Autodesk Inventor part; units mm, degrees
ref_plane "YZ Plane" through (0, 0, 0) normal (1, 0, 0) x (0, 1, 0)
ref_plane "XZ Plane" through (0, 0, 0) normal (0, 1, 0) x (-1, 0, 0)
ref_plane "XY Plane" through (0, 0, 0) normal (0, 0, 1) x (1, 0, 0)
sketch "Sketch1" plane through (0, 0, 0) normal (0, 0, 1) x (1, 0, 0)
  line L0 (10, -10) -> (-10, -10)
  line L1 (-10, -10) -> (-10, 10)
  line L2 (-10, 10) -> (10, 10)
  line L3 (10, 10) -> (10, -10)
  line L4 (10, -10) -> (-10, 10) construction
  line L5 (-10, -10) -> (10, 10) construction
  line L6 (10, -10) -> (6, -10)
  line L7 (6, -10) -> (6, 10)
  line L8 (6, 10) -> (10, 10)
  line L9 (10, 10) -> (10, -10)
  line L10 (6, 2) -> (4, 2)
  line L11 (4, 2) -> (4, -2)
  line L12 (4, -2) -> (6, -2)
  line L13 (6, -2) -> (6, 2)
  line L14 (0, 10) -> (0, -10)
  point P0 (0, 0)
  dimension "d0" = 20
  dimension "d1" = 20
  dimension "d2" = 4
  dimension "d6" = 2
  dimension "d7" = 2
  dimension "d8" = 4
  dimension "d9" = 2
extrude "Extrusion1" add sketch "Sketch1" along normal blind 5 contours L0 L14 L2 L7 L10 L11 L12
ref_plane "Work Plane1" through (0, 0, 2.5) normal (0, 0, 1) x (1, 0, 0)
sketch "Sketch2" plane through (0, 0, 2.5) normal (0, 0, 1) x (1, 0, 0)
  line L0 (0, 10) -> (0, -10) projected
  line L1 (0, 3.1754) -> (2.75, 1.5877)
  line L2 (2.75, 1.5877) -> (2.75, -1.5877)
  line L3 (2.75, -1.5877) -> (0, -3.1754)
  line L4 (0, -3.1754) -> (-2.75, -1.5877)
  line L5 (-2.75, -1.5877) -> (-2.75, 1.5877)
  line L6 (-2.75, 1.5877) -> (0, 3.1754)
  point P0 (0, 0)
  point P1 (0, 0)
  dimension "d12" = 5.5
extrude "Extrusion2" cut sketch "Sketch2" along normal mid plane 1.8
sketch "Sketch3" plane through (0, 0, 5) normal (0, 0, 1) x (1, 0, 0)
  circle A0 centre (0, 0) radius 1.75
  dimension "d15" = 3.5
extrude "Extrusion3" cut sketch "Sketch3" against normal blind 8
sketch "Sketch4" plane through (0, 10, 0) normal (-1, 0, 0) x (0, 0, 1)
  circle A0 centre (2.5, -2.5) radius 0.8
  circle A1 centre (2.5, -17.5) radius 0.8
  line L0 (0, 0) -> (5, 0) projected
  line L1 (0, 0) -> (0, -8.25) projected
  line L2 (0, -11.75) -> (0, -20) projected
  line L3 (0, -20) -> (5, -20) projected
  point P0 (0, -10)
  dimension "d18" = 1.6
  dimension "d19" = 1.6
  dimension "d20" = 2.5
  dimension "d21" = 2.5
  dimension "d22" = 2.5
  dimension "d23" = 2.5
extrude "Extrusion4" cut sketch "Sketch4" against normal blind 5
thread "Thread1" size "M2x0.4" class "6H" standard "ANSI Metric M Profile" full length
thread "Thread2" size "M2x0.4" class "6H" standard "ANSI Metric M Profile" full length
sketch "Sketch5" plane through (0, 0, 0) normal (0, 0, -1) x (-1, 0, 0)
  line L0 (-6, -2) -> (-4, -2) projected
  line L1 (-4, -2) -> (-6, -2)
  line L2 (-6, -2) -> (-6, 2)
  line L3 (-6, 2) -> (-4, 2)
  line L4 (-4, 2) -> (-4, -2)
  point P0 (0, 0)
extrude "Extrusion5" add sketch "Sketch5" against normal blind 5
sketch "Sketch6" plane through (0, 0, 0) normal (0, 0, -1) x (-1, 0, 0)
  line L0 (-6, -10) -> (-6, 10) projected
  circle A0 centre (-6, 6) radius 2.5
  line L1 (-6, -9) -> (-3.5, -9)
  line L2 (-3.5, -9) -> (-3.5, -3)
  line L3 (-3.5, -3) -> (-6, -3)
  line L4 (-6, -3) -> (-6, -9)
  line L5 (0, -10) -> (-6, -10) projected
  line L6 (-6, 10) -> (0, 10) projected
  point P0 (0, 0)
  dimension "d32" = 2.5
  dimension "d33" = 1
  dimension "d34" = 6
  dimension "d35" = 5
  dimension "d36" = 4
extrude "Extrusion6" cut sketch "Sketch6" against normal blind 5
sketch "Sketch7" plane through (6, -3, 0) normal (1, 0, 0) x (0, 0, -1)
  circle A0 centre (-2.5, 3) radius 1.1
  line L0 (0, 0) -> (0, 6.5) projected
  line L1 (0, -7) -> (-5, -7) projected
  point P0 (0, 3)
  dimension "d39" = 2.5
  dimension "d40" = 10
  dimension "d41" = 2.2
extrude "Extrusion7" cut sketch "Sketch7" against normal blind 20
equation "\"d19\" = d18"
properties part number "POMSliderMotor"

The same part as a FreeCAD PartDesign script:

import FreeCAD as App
import Part
import Sketcher
from FreeCAD import Vector
Q = App.Units.Quantity

doc = App.newDocument("Part")
body = doc.addObject("PartDesign::Body", "Body")

# Sketch on XY plane
sketch1 = body.newObject("Sketcher::SketchObject", "Sketch")
sketch1.AttachmentSupport = (doc.getObject("XY_Plane"), [""])
sketch1.MapMode = "FlatFace"
sketch1.addGeometry(Part.LineSegment(Vector(0, -10, 0), Vector(6, -10, 0)), False)
sketch1.addGeometry(Part.LineSegment(Vector(6, -10, 0), Vector(6, -2, 0)), False)
sketch1.addGeometry(Part.LineSegment(Vector(6, -2, 0), Vector(4, -2, 0)), False)
sketch1.addGeometry(Part.LineSegment(Vector(4, -2, 0), Vector(4, 2, 0)), False)
sketch1.addGeometry(Part.LineSegment(Vector(4, 2, 0), Vector(6, 2, 0)), False)
sketch1.addGeometry(Part.LineSegment(Vector(6, 2, 0), Vector(6, 10, 0)), False)
sketch1.addGeometry(Part.LineSegment(Vector(6, 10, 0), Vector(0, 10, 0)), False)
sketch1.addGeometry(Part.LineSegment(Vector(0, 10, 0), Vector(0, -10, 0)), False)
sketch1.addConstraint(Sketcher.Constraint("Coincident", 0, 2, 1, 1))
sketch1.addConstraint(Sketcher.Constraint("Coincident", 1, 2, 2, 1))
sketch1.addConstraint(Sketcher.Constraint("Coincident", 2, 2, 3, 1))
sketch1.addConstraint(Sketcher.Constraint("Coincident", 3, 2, 4, 1))
sketch1.addConstraint(Sketcher.Constraint("Coincident", 4, 2, 5, 1))
sketch1.addConstraint(Sketcher.Constraint("Coincident", 5, 2, 6, 1))
sketch1.addConstraint(Sketcher.Constraint("Coincident", 6, 2, 7, 1))
sketch1.addConstraint(Sketcher.Constraint("Coincident", 7, 2, 0, 1))
sketch1.addConstraint(Sketcher.Constraint("Horizontal", 0))
sketch1.addConstraint(Sketcher.Constraint("Vertical", 1))
sketch1.addConstraint(Sketcher.Constraint("Horizontal", 2))
sketch1.addConstraint(Sketcher.Constraint("Vertical", 3))
sketch1.addConstraint(Sketcher.Constraint("Horizontal", 4))
sketch1.addConstraint(Sketcher.Constraint("Vertical", 5))
sketch1.addConstraint(Sketcher.Constraint("Horizontal", 6))
sketch1.addConstraint(Sketcher.Constraint("Vertical", 7))
sketch1.addConstraint(Sketcher.Constraint("Symmetric", 6, 2, 7, 2, -1, 1))
sketch1.addConstraint(Sketcher.Constraint("Symmetric", 1, 2, 4, 2, -1))
sketch1.addConstraint(Sketcher.Constraint("DistanceX", 2, 2, 2, 1, Q("2 mm")))
sketch1.addConstraint(Sketcher.Constraint("DistanceY", 3, 1, 3, 2, Q("4 mm")))
sketch1.addConstraint(Sketcher.Constraint("DistanceY", 7, 2, 7, 1, Q("20 mm")))
sketch1.addConstraint(Sketcher.Constraint("DistanceX", -1, 1, 2, 2, Q("4 mm")))
pad1 = body.newObject("PartDesign::Pad", "Pad")
pad1.Profile = sketch1
pad1.Length = 5

# Sketch on XY plane
sketch2 = body.newObject("Sketcher::SketchObject", "Sketch001")
sketch2.AttachmentSupport = (doc.getObject("XY_Plane"), [""])
sketch2.MapMode = "FlatFace"
sketch2.AttachmentOffset = App.Placement(Vector(0, 0, 2.5), App.Rotation())
sketch2.addGeometry(Part.LineSegment(Vector(2.8, 1.6, 0), Vector(0, 3.2, 0)), False)
sketch2.addGeometry(Part.LineSegment(Vector(0, 3.2, 0), Vector(-2.8, 1.6, 0)), False)
sketch2.addGeometry(Part.LineSegment(Vector(-2.8, 1.6, 0), Vector(-2.8, -1.6, 0)), False)
sketch2.addGeometry(Part.LineSegment(Vector(-2.8, -1.6, 0), Vector(0, -3.2, 0)), False)
sketch2.addGeometry(Part.LineSegment(Vector(0, -3.2, 0), Vector(2.8, -1.6, 0)), False)
sketch2.addGeometry(Part.LineSegment(Vector(2.8, -1.6, 0), Vector(2.8, 1.6, 0)), False)
sketch2.addConstraint(Sketcher.Constraint("Coincident", 0, 2, 1, 1))
sketch2.addConstraint(Sketcher.Constraint("Coincident", 1, 2, 2, 1))
sketch2.addConstraint(Sketcher.Constraint("Coincident", 2, 2, 3, 1))
sketch2.addConstraint(Sketcher.Constraint("Coincident", 3, 2, 4, 1))
sketch2.addConstraint(Sketcher.Constraint("Coincident", 4, 2, 5, 1))
sketch2.addConstraint(Sketcher.Constraint("Coincident", 5, 2, 0, 1))
sketch2.addConstraint(Sketcher.Constraint("Vertical", 2))
sketch2.addConstraint(Sketcher.Constraint("Vertical", 5))
sketch2.addConstraint(Sketcher.Constraint("Symmetric", 0, 2, 3, 2, -1, 1))
sketch2.addConstraint(Sketcher.Constraint("Symmetric", 1, 2, 4, 2, -1, 1))
sketch2.addConstraint(Sketcher.Constraint("PointOnObject", 0, 2, -2))
sketch2.addConstraint(Sketcher.Constraint("Parallel", 0, 3))
sketch2.addConstraint(Sketcher.Constraint("Horizontal", 2, 2, 4, 2))
sketch2.addConstraint(Sketcher.Constraint("DistanceX", 2, 2, 4, 2, Q("5.5 mm")))
sketch2.addConstraint(Sketcher.Constraint("Angle", 0, Q("150.0002 deg")))
sketch2.addConstraint(Sketcher.Constraint("DistanceY", 2, 2, 2, 1, Q("3.1754 mm")))
pocket1 = body.newObject("PartDesign::Pocket", "Pocket")
pocket1.Profile = sketch2
pocket1.Length = 1.8
pocket1.Midplane = True

# Sketch on XY plane
sketch3 = body.newObject("Sketcher::SketchObject", "Sketch002")
sketch3.AttachmentSupport = (doc.getObject("XY_Plane"), [""])
sketch3.MapMode = "FlatFace"
sketch3.AttachmentOffset = App.Placement(Vector(0, 0, 5), App.Rotation())
sketch3.addGeometry(Part.Circle(Vector(0, 0, 0), Vector(0, 0, 1), 1.8), False)
sketch3.addConstraint(Sketcher.Constraint("Coincident", 0, 3, -1, 1))
sketch3.addConstraint(Sketcher.Constraint("Diameter", 0, Q("3.5 mm")))
pocket2 = body.newObject("PartDesign::Pocket", "Pocket001")
pocket2.Profile = sketch3
pocket2.Length = 8

# Sketch on YZ plane
sketch4 = body.newObject("Sketcher::SketchObject", "Sketch003")
sketch4.AttachmentSupport = (doc.getObject("YZ_Plane"), [""])
sketch4.MapMode = "FlatFace"
sketch4.addGeometry(Part.Circle(Vector(7.5, 2.5, 0), Vector(0, 0, 1), 0.8), False)
sketch4.addGeometry(Part.Circle(Vector(-7.5, 2.5, 0), Vector(0, 0, 1), 0.8), False)
sketch4.addConstraint(Sketcher.Constraint("Equal", 0, 1))
sketch4.addConstraint(Sketcher.Constraint("Symmetric", 0, 3, 1, 3, -2))
sketch4.addConstraint(Sketcher.Constraint("Diameter", 0, Q("1.6 mm")))
sketch4.addConstraint(Sketcher.Constraint("DistanceY", -1, 1, 0, 3, Q("2.5 mm")))
sketch4.addConstraint(Sketcher.Constraint("DistanceX", 1, 3, 0, 3, Q("15 mm")))
pocket3 = body.newObject("PartDesign::Pocket", "Pocket002")
pocket3.Profile = sketch4
pocket3.Length = 5
pocket3.Reversed = True

# Sketch on XY plane
sketch5 = body.newObject("Sketcher::SketchObject", "Sketch004")
sketch5.AttachmentSupport = (doc.getObject("XY_Plane"), [""])
sketch5.MapMode = "FlatFace"
sketch5.addGeometry(Part.LineSegment(Vector(6, 2, 0), Vector(6, -2, 0)), False)
sketch5.addGeometry(Part.LineSegment(Vector(6, -2, 0), Vector(4, -2, 0)), False)
sketch5.addGeometry(Part.LineSegment(Vector(4, -2, 0), Vector(4, 2, 0)), False)
sketch5.addGeometry(Part.LineSegment(Vector(4, 2, 0), Vector(6, 2, 0)), False)
sketch5.addConstraint(Sketcher.Constraint("Coincident", 0, 2, 1, 1))
sketch5.addConstraint(Sketcher.Constraint("Coincident", 1, 2, 2, 1))
sketch5.addConstraint(Sketcher.Constraint("Coincident", 2, 2, 3, 1))
sketch5.addConstraint(Sketcher.Constraint("Coincident", 3, 2, 0, 1))
sketch5.addConstraint(Sketcher.Constraint("Vertical", 0))
sketch5.addConstraint(Sketcher.Constraint("Horizontal", 1))
sketch5.addConstraint(Sketcher.Constraint("Vertical", 2))
sketch5.addConstraint(Sketcher.Constraint("Horizontal", 3))
sketch5.addConstraint(Sketcher.Constraint("DistanceX", 1, 2, 1, 1, Q("2 mm")))
sketch5.addConstraint(Sketcher.Constraint("DistanceY", 0, 2, 0, 1, Q("4 mm")))
sketch5.addConstraint(Sketcher.Constraint("DistanceX", -1, 1, 0, 2, Q("6 mm")))
sketch5.addConstraint(Sketcher.Constraint("DistanceY", 0, 2, -1, 1, Q("2 mm")))
pad2 = body.newObject("PartDesign::Pad", "Pad001")
pad2.Profile = sketch5
pad2.Length = 5

# Sketch on XY plane
sketch6 = body.newObject("Sketcher::SketchObject", "Sketch005")
sketch6.AttachmentSupport = (doc.getObject("XY_Plane"), [""])
sketch6.MapMode = "FlatFace"
sketch6.addGeometry(Part.Circle(Vector(6, 6, 0), Vector(0, 0, 1), 2.5), False)
sketch6.addGeometry(Part.LineSegment(Vector(6, -3, 0), Vector(6, -9, 0)), False)
sketch6.addGeometry(Part.LineSegment(Vector(6, -9, 0), Vector(3.5, -9, 0)), False)
sketch6.addGeometry(Part.LineSegment(Vector(3.5, -9, 0), Vector(3.5, -3, 0)), False)
sketch6.addGeometry(Part.LineSegment(Vector(3.5, -3, 0), Vector(6, -3, 0)), False)
sketch6.addConstraint(Sketcher.Constraint("Coincident", 1, 2, 2, 1))
sketch6.addConstraint(Sketcher.Constraint("Coincident", 2, 2, 3, 1))
sketch6.addConstraint(Sketcher.Constraint("Coincident", 3, 2, 4, 1))
sketch6.addConstraint(Sketcher.Constraint("Coincident", 4, 2, 1, 1))
sketch6.addConstraint(Sketcher.Constraint("Vertical", 1))
sketch6.addConstraint(Sketcher.Constraint("Horizontal", 2))
sketch6.addConstraint(Sketcher.Constraint("Vertical", 3))
sketch6.addConstraint(Sketcher.Constraint("Horizontal", 4))
sketch6.addConstraint(Sketcher.Constraint("Vertical", 0, 3, 1, 2))
sketch6.addConstraint(Sketcher.Constraint("Diameter", 0, Q("5 mm")))
sketch6.addConstraint(Sketcher.Constraint("DistanceY", 1, 2, 1, 1, Q("6 mm")))
sketch6.addConstraint(Sketcher.Constraint("DistanceX", 2, 2, 2, 1, Q("2.5 mm")))
sketch6.addConstraint(Sketcher.Constraint("DistanceX", -1, 1, 0, 3, Q("6 mm")))
sketch6.addConstraint(Sketcher.Constraint("DistanceY", -1, 1, 0, 3, Q("6 mm")))
sketch6.addConstraint(Sketcher.Constraint("DistanceY", 1, 2, -1, 1, Q("9 mm")))
pocket4 = body.newObject("PartDesign::Pocket", "Pocket003")
pocket4.Profile = sketch6
pocket4.Length = 5
pocket4.Reversed = True

# Sketch on YZ plane
sketch7 = body.newObject("Sketcher::SketchObject", "Sketch006")
sketch7.AttachmentSupport = (doc.getObject("YZ_Plane"), [""])
sketch7.MapMode = "FlatFace"
sketch7.AttachmentOffset = App.Placement(Vector(0, 0, 6), App.Rotation())
sketch7.addGeometry(Part.Circle(Vector(0, 2.5, 0), Vector(0, 0, 1), 1.1), False)
sketch7.addConstraint(Sketcher.Constraint("PointOnObject", 0, 3, -2))
sketch7.addConstraint(Sketcher.Constraint("Diameter", 0, Q("2.2 mm")))
sketch7.addConstraint(Sketcher.Constraint("DistanceY", -1, 1, 0, 3, Q("2.5 mm")))
pocket5 = body.newObject("PartDesign::Pocket", "Pocket004")
pocket5.Profile = sketch7
pocket5.Length = 20

doc.recompute()
